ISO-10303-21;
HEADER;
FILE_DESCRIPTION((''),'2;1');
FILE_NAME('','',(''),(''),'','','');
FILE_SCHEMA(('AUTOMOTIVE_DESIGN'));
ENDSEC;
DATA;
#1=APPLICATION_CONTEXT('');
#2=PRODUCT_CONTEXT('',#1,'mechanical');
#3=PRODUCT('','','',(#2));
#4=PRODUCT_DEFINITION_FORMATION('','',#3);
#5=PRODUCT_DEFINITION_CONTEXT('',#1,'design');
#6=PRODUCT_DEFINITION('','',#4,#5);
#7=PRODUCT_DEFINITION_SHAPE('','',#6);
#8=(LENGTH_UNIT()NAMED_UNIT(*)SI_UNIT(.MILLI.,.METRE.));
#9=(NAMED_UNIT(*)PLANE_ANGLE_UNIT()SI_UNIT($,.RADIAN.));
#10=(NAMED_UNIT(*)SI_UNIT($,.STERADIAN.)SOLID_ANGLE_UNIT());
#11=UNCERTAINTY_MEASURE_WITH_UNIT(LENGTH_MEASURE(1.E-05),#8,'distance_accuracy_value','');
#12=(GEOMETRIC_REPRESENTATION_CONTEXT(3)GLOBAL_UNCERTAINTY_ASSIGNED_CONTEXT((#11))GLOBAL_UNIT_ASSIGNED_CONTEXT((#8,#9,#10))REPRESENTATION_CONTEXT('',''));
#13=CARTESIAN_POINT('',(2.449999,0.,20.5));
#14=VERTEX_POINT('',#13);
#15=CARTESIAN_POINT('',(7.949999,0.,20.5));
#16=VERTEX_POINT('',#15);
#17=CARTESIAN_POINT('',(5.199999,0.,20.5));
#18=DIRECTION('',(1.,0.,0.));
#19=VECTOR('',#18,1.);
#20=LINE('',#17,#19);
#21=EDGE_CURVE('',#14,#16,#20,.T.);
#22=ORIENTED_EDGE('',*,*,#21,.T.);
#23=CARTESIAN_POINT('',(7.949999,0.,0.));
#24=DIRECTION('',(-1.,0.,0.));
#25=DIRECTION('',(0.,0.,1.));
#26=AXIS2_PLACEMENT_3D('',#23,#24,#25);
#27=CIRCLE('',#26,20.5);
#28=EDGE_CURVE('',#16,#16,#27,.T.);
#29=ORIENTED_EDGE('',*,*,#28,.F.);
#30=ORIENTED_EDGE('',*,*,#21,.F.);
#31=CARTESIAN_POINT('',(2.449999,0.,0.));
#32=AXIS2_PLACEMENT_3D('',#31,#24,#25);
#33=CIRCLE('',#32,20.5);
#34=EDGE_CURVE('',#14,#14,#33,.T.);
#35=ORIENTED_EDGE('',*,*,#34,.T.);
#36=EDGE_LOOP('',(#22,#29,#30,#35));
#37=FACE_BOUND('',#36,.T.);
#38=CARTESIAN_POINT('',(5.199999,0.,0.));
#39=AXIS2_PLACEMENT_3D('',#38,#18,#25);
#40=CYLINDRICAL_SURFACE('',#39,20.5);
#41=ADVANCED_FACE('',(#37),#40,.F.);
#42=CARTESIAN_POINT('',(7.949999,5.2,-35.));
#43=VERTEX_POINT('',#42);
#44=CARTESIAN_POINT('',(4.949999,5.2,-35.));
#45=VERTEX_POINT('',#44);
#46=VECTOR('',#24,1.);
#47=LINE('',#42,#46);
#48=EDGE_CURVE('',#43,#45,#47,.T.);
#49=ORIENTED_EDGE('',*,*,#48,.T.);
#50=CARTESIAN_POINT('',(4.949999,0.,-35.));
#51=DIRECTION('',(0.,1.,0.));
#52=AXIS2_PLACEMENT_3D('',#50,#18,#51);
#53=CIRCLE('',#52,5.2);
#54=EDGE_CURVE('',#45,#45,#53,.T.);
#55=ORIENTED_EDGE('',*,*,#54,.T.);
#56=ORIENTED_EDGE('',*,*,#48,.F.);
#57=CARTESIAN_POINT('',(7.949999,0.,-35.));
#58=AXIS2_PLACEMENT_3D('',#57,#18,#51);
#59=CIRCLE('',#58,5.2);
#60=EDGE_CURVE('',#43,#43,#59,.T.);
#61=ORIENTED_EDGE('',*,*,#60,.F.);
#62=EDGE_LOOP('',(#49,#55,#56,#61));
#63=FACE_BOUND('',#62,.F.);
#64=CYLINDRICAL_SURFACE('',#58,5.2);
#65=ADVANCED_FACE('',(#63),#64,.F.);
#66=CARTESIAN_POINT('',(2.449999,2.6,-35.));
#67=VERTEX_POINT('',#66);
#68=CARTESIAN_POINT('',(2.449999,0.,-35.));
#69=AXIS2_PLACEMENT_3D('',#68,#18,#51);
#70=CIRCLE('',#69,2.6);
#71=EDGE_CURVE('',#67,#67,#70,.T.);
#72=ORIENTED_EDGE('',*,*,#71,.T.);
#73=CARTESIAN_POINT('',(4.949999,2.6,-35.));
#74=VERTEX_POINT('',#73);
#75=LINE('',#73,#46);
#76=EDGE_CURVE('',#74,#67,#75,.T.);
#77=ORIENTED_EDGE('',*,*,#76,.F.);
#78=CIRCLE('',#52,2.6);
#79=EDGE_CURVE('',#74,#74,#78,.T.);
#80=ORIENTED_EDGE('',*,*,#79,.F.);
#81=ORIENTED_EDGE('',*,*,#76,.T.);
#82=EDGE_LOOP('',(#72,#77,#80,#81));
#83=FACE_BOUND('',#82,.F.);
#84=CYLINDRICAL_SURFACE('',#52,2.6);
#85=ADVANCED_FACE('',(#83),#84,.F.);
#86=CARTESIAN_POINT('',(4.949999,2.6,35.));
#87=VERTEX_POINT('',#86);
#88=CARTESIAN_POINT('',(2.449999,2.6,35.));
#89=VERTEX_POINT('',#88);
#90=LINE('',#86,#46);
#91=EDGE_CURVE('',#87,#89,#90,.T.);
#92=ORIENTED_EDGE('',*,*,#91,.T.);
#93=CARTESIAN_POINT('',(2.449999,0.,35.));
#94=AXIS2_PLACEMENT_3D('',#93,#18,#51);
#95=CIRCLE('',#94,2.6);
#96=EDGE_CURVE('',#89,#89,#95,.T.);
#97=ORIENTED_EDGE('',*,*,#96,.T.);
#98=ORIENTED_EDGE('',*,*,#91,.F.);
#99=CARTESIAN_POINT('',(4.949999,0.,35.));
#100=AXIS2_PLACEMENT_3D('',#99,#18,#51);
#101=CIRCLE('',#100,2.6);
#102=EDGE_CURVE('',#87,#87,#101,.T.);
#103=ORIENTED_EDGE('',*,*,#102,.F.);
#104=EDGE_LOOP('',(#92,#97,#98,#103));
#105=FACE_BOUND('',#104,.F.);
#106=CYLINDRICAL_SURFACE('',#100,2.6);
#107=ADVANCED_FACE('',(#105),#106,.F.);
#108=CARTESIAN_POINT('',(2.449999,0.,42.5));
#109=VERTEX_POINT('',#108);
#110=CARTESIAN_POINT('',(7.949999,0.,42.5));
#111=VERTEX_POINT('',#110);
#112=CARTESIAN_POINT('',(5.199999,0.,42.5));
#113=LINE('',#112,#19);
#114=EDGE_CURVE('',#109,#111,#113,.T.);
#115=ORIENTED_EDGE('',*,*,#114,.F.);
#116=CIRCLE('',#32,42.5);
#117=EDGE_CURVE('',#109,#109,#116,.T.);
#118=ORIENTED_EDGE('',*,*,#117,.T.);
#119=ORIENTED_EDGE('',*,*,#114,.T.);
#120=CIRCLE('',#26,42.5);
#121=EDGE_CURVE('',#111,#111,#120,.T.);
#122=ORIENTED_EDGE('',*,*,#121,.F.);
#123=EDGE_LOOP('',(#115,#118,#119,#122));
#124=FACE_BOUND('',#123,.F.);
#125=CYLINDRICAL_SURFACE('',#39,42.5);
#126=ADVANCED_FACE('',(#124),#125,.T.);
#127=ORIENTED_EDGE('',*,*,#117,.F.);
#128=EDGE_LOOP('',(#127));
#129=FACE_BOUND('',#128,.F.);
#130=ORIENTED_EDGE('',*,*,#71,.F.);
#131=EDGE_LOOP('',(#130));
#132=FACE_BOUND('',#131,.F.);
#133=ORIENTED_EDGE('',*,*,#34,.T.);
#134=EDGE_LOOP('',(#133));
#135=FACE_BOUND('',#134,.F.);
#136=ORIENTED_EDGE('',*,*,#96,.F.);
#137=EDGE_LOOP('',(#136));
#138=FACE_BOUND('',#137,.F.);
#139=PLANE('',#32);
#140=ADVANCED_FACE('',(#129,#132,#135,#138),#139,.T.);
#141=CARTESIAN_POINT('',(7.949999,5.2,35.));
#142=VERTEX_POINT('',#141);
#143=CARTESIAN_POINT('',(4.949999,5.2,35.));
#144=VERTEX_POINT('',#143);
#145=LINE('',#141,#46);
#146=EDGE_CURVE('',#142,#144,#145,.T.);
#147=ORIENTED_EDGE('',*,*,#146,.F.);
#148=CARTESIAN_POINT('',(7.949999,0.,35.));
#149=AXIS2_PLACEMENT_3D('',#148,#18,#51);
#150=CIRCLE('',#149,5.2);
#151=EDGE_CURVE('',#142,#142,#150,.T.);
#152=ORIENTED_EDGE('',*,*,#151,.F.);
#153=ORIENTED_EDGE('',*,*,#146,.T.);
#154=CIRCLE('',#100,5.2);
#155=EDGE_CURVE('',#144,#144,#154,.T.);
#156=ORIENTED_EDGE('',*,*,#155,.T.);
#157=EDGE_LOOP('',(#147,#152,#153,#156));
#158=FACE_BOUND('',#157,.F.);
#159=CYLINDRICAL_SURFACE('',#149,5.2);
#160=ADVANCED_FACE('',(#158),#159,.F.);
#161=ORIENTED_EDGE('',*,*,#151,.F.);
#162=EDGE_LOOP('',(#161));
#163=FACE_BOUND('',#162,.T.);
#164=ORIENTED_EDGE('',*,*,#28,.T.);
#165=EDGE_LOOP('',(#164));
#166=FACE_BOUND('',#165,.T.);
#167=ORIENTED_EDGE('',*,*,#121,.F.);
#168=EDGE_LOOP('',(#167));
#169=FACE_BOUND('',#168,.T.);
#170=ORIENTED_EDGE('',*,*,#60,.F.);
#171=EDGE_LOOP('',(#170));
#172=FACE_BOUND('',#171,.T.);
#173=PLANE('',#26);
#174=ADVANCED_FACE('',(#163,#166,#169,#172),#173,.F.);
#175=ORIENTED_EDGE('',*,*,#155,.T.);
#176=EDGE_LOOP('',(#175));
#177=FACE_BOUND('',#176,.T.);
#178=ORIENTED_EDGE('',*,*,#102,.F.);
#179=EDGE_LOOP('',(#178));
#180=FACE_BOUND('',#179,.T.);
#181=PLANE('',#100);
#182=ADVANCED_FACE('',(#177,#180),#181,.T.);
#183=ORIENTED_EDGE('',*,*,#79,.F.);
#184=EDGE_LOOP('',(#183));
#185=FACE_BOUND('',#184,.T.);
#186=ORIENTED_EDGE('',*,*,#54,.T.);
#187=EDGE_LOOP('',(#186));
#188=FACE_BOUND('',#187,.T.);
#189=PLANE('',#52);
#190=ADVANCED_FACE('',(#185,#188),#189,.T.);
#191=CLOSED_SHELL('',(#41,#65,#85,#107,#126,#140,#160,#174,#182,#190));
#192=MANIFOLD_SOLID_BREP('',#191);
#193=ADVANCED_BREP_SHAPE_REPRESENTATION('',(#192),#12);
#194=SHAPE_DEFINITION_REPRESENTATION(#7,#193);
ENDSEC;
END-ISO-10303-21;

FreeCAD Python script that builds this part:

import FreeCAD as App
import Part
import Sketcher


def add_polygon(sketch, points):
    """Adds a closed chain of lines whose ends are joined by coincident constraints."""
    first, n = sketch.GeometryCount, len(points)
    for a, b in zip(points, points[1:] + points[:1]):
        sketch.addGeometry(Part.LineSegment(App.Vector(*a, 0), App.Vector(*b, 0)), False)
    for i in range(n):
        sketch.addConstraint(Sketcher.Constraint("Coincident", first + i, 2, first + (i + 1) % n, 1))

doc = App.newDocument("Part")
body = doc.addObject("PartDesign::Body", "Body")

# Sketch on XZ plane
sketch1 = body.newObject("Sketcher::SketchObject", "Sketch")
sketch1.AttachmentSupport = (doc.getObject("XZ_Plane"), [""])
sketch1.MapMode = "FlatFace"
add_polygon(sketch1, [(2, 42), (2, 20), (8, 20), (8, 42)])  # lines 0-3
sketch1.addConstraint([
    Sketcher.Constraint("Vertical", 0),
    Sketcher.Constraint("Horizontal", 1),
    Sketcher.Constraint("Vertical", 2),
    Sketcher.Constraint("Horizontal", 3),
    Sketcher.Constraint("DistanceY", 0, 2, 0, 1, 22.0),
    Sketcher.Constraint("DistanceX", 1, 1, 1, 2, 5.5),
    Sketcher.Constraint("DistanceY", -1, 1, 0, 2, 20.5),
    Sketcher.Constraint("DistanceX", -1, 1, 0, 2, 2.449999),
])
revolution = body.newObject("PartDesign::Revolution", "Revolution")
revolution.Profile = sketch1
revolution.ReferenceAxis = (sketch1, ["H_Axis"])
revolution.Angle = 360

# Sketch on YZ plane
sketch2 = body.newObject("Sketcher::SketchObject", "Sketch001")
sketch2.AttachmentSupport = (doc.getObject("YZ_Plane"), [""])
sketch2.MapMode = "FlatFace"
sketch2.AttachmentOffset = App.Placement(App.Vector(0, 0, 7.949999), App.Rotation())
sketch2.addGeometry([
    Part.Circle(App.Vector(0, 35, 0), App.Vector(0, 0, 1), 5),
    Part.Circle(App.Vector(0, -35, 0), App.Vector(0, 0, 1), 5),
], False)
sketch2.addConstraint([
    Sketcher.Constraint("Equal", 0, 1),
    Sketcher.Constraint("Symmetric", 0, 3, 1, 3, -1, 1),
    Sketcher.Constraint("PointOnObject", 0, 3, -2),
    Sketcher.Constraint("Diameter", 0, 10.4),
    Sketcher.Constraint("DistanceY", -1, 1, 0, 3, 35.0),
])
pocket1 = body.newObject("PartDesign::Pocket", "Pocket")
pocket1.Profile = sketch2
pocket1.Length = 3

# Sketch on YZ plane
sketch3 = body.newObject("Sketcher::SketchObject", "Sketch002")
sketch3.AttachmentSupport = (doc.getObject("YZ_Plane"), [""])
sketch3.MapMode = "FlatFace"
sketch3.AttachmentOffset = App.Placement(App.Vector(0, 0, 4.949999), App.Rotation())
sketch3.addGeometry([
    Part.Circle(App.Vector(0, 35, 0), App.Vector(0, 0, 1), 2.6),
    Part.Circle(App.Vector(0, -35, 0), App.Vector(0, 0, 1), 2.6),
], False)
sketch3.addConstraint([
    Sketcher.Constraint("Equal", 0, 1),
    Sketcher.Constraint("Symmetric", 0, 3, 1, 3, -1, 1),
    Sketcher.Constraint("PointOnObject", 0, 3, -2),
    Sketcher.Constraint("Diameter", 0, 5.2),
    Sketcher.Constraint("DistanceY", -1, 1, 0, 3, 35.0),
])
pocket2 = body.newObject("PartDesign::Pocket", "Pocket001")
pocket2.Profile = sketch3
pocket2.Length = 25

doc.recompute()
